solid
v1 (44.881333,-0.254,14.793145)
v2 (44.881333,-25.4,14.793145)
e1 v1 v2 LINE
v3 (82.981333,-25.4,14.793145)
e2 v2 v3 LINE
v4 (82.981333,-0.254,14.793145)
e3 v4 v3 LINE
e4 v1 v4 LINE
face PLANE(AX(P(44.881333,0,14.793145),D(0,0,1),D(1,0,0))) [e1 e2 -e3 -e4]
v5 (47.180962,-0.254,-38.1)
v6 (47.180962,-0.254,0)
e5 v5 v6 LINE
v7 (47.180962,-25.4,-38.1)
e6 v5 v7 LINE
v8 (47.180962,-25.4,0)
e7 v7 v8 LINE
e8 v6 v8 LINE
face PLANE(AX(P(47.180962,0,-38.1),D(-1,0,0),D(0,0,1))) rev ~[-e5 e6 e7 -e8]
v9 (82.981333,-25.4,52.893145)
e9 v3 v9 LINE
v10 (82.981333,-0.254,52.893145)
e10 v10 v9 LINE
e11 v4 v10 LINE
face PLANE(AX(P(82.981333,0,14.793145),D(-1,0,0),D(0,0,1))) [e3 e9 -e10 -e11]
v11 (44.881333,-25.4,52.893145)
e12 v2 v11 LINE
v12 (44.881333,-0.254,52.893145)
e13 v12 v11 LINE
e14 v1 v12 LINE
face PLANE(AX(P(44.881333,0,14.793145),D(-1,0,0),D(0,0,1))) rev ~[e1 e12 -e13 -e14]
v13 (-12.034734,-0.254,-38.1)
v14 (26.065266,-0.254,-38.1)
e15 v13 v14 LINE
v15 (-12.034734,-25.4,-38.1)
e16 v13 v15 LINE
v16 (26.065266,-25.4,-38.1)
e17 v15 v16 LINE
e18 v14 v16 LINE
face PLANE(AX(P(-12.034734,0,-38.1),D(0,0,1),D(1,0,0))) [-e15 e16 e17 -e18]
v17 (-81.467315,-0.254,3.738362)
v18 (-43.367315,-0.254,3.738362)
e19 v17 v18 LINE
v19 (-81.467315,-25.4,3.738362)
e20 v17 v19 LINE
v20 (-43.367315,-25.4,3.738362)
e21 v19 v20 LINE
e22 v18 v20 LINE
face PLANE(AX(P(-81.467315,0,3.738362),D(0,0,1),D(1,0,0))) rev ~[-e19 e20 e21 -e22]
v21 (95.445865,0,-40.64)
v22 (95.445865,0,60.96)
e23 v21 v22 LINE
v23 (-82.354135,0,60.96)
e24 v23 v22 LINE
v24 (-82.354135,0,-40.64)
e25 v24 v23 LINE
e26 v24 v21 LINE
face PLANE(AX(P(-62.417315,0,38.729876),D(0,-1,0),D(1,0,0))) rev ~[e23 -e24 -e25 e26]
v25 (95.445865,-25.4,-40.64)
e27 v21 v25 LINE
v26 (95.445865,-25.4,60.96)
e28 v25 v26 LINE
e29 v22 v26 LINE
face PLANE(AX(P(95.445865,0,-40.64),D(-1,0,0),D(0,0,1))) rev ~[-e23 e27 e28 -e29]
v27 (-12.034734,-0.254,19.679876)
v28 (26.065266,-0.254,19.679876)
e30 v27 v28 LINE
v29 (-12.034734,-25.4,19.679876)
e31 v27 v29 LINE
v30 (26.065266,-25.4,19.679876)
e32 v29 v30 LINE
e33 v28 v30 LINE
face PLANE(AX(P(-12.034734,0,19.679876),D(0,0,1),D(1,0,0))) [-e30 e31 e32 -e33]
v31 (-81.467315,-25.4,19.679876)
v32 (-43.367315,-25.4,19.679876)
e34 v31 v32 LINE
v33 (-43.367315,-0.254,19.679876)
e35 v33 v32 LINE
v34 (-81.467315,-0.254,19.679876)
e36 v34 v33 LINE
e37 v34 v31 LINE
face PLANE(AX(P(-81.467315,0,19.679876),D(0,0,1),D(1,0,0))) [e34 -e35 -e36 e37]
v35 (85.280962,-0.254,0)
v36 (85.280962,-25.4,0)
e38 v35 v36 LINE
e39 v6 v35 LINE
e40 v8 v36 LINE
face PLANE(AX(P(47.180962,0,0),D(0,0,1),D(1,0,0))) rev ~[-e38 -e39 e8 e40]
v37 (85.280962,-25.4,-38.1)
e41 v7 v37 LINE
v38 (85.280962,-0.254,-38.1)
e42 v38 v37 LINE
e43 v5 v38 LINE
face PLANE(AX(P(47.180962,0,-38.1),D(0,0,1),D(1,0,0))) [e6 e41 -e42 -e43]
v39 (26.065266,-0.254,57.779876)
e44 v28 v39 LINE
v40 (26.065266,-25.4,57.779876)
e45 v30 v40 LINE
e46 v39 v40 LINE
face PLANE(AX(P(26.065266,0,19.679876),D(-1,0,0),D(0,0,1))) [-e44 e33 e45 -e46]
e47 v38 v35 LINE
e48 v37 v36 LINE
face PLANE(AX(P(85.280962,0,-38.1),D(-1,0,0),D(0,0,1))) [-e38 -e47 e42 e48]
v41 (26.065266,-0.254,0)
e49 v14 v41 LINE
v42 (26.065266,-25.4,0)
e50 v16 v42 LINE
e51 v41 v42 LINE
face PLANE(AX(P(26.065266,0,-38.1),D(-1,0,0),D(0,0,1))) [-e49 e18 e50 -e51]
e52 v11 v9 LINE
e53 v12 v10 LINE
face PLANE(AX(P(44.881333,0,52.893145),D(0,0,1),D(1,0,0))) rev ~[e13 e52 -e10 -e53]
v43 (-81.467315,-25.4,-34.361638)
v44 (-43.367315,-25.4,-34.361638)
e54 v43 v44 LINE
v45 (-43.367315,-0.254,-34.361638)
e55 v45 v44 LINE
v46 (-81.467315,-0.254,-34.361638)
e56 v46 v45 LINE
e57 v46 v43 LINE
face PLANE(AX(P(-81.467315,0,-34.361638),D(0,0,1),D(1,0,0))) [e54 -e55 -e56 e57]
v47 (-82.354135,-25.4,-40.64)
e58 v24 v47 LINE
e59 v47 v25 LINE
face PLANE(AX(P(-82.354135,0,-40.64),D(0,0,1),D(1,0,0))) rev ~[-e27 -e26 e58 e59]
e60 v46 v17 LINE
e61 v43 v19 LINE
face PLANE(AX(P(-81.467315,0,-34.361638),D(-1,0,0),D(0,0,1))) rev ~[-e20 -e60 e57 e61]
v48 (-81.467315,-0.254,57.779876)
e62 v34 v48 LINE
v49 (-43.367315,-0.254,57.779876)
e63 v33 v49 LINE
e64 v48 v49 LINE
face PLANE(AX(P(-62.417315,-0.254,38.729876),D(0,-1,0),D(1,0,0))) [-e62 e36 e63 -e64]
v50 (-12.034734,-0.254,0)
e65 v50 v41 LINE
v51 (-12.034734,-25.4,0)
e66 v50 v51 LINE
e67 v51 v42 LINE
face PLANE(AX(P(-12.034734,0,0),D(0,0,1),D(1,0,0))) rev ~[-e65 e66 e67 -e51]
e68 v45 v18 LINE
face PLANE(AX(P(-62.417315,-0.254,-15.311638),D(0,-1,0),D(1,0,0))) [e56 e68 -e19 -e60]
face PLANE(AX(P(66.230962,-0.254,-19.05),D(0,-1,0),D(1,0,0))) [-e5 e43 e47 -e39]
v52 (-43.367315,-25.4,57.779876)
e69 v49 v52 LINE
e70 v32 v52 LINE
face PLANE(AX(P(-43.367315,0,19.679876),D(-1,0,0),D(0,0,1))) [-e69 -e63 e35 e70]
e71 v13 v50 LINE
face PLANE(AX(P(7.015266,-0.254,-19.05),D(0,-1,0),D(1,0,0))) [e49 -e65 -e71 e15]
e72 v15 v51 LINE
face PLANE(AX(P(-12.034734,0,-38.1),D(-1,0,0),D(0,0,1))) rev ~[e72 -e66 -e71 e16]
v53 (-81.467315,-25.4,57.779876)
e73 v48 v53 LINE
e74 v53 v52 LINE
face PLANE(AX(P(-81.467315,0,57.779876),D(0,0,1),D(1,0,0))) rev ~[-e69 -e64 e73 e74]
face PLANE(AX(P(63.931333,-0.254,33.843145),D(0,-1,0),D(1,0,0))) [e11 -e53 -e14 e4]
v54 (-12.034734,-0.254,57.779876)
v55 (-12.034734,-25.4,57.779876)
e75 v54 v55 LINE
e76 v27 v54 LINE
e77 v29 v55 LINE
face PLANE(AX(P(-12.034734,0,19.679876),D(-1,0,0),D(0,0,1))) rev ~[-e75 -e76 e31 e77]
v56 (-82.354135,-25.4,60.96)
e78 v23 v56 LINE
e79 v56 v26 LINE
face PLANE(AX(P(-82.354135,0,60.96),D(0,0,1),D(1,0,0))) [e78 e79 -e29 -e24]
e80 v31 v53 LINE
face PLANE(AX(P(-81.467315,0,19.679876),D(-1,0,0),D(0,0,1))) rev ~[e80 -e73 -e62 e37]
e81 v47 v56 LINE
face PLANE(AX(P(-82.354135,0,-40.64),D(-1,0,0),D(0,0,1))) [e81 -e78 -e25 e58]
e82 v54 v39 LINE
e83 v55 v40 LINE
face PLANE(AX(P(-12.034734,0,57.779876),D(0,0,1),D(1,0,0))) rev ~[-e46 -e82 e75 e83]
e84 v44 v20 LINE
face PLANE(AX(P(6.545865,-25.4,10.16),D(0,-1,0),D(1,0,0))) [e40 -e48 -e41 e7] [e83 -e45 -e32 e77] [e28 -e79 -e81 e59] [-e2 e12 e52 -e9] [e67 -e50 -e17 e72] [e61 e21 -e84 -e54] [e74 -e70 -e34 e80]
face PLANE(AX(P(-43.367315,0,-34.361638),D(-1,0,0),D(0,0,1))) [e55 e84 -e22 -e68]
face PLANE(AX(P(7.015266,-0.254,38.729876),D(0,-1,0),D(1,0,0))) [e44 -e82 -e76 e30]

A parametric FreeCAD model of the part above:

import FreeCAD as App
import Part
import Sketcher
Q = App.Units.Quantity


def add_polygon(sketch, points):
    """Adds a closed chain of lines whose ends are joined by coincident constraints."""
    first, n = sketch.GeometryCount, len(points)
    for a, b in zip(points, points[1:] + points[:1]):
        sketch.addGeometry(Part.LineSegment(App.Vector(*a, 0), App.Vector(*b, 0)), False)
    for i in range(n):
        sketch.addConstraint(Sketcher.Constraint("Coincident", first + i, 2, first + (i + 1) % n, 1))

doc = App.newDocument("Part")
body = doc.addObject("PartDesign::Body", "Body")

sketch1 = body.newObject("Sketcher::SketchObject", "Sketch")
sketch1.AttachmentSupport = (doc.getObject("XZ_Plane"), [""])
sketch1.MapMode = "FlatFace"
add_polygon(sketch1, [(-82, 61), (-82, -41), (95, -41), (95, 61)])
add_polygon(sketch1, [(-43, -34), (-81, -34), (-81, 4), (-43, 4)])
add_polygon(sketch1, [(26, -38), (-12, -38), (-12, 0), (26, 0)])
add_polygon(sketch1, [(85, -38), (47, -38), (47, 0), (85, 0)])
add_polygon(sketch1, [(-43, 20), (-81, 20), (-81, 58), (-43, 58)])
add_polygon(sketch1, [(26, 20), (-12, 20), (-12, 58), (26, 58)])
add_polygon(sketch1, [(83, 15), (45, 15), (45, 53), (83, 53)])
sketch1.addConstraint([
    Sketcher.Constraint("Vertical", 0),
    Sketcher.Constraint("Horizontal", 1),
    Sketcher.Constraint("Vertical", 2),
    Sketcher.Constraint("Horizontal", 3),
    Sketcher.Constraint("Horizontal", 4),
    Sketcher.Constraint("Vertical", 5),
    Sketcher.Constraint("Horizontal", 6),
    Sketcher.Constraint("Vertical", 7),
    Sketcher.Constraint("Horizontal", 8),
    Sketcher.Constraint("Vertical", 9),
    Sketcher.Constraint("Horizontal", 10),
    Sketcher.Constraint("Vertical", 11),
    Sketcher.Constraint("Horizontal", 12),
    Sketcher.Constraint("Vertical", 13),
    Sketcher.Constraint("Horizontal", 14),
    Sketcher.Constraint("Vertical", 15),
    Sketcher.Constraint("Horizontal", 16),
    Sketcher.Constraint("Vertical", 17),
    Sketcher.Constraint("Horizontal", 18),
    Sketcher.Constraint("Vertical", 19),
    Sketcher.Constraint("Horizontal", 20),
    Sketcher.Constraint("Vertical", 21),
    Sketcher.Constraint("Horizontal", 22),
    Sketcher.Constraint("Vertical", 23),
    Sketcher.Constraint("Horizontal", 24),
    Sketcher.Constraint("Vertical", 25),
    Sketcher.Constraint("Horizontal", 26),
    Sketcher.Constraint("Vertical", 27),
    Sketcher.Constraint("PointOnObject", 9, 2, -1),
    Sketcher.Constraint("PointOnObject", 13, 2, -1),
    Sketcher.Constraint("Horizontal", 11, 2, 12, 2),
    Sketcher.Constraint("Horizontal", 19, 2, 20, 2),
    Sketcher.Constraint("Horizontal", 18, 2, 21, 2),
    Sketcher.Constraint("Vertical", 5, 2, 16, 2),
    Sketcher.Constraint("Vertical", 7, 2, 18, 2),
    Sketcher.Constraint("Vertical", 9, 2, 20, 2),
    Sketcher.Constraint("Vertical", 11, 2, 22, 2),
    Sketcher.Constraint("Equal", 6, 8),
    Sketcher.Constraint("Equal", 10, 12),
    Sketcher.Constraint("Equal", 22, 24),
    Sketcher.Constraint("Equal", 26, 5),
    Sketcher.Constraint("Equal", 7, 9),
    Sketcher.Constraint("Equal", 15, 17),
    Sketcher.Constraint("Equal", 23, 25),
    Sketcher.Constraint("DistanceX", 1, 1, 1, 2, Q("7 in")),
    Sketcher.Constraint("DistanceY", 0, 2, 0, 1, Q("4 in")),
    Sketcher.Constraint("DistanceX", 4, 2, 4, 1, Q("1.5 in")),
    Sketcher.Constraint("DistanceY", 0, 2, -1, 1, Q("1.6 in")),
    Sketcher.Constraint("DistanceX", 0, 2, 8, 2, Q("70.319401 mm")),
    Sketcher.Constraint("DistanceY", -1, 1, 5, 2, Q("3.738362 mm")),
    Sketcher.Constraint("DistanceX", 0, 2, 4, 2, Q("0.88682 mm")),
    Sketcher.Constraint("DistanceX", 24, 2, 13, 2, Q("2.299629 mm")),
    Sketcher.Constraint("DistanceY", 24, 2, 23, 2, Q("4.886731 mm")),
    Sketcher.Constraint("DistanceX", 26, 2, 2, 2, Q("12.464532 mm")),
    Sketcher.Constraint("DistanceX", 0, 2, -1, 1, Q("82.354135 mm")),
    Sketcher.Constraint("DistanceY", -1, 1, 16, 2, Q("19.679876 mm")),
])
pad1 = body.newObject("PartDesign::Pad", "Pad")
pad1.Profile = sketch1
pad1.Length = Q("1 in")

sketch2 = body.newObject("Sketcher::SketchObject", "Sketch001")
sketch2.AttachmentSupport = (doc.getObject("XZ_Plane"), [""])
sketch2.MapMode = "FlatFace"
add_polygon(sketch2, [(-81, 58), (-81, 20), (-43, 20), (-43, 58)])
add_polygon(sketch2, [(-12, 58), (-12, 20), (26, 20), (26, 58)])
add_polygon(sketch2, [(45, 53), (45, 15), (83, 15), (83, 53)])
add_polygon(sketch2, [(47, 0), (47, -38), (85, -38), (85, 0)])
add_polygon(sketch2, [(-12, 0), (-12, -38), (26, -38), (26, 0)])
add_polygon(sketch2, [(-81, 4), (-81, -34), (-43, -34), (-43, 4)])
sketch2.addConstraint([
    Sketcher.Constraint("Vertical", 0),
    Sketcher.Constraint("Horizontal", 1),
    Sketcher.Constraint("Vertical", 2),
    Sketcher.Constraint("Horizontal", 3),
    Sketcher.Constraint("Vertical", 4),
    Sketcher.Constraint("Horizontal", 5),
    Sketcher.Constraint("Vertical", 6),
    Sketcher.Constraint("Horizontal", 7),
    Sketcher.Constraint("Vertical", 8),
    Sketcher.Constraint("Horizontal", 9),
    Sketcher.Constraint("Vertical", 10),
    Sketcher.Constraint("Horizontal", 11),
    Sketcher.Constraint("Vertical", 12),
    Sketcher.Constraint("Horizontal", 13),
    Sketcher.Constraint("Vertical", 14),
    Sketcher.Constraint("Horizontal", 15),
    Sketcher.Constraint("Vertical", 16),
    Sketcher.Constraint("Horizontal", 17),
    Sketcher.Constraint("Vertical", 18),
    Sketcher.Constraint("Horizontal", 19),
    Sketcher.Constraint("Vertical", 20),
    Sketcher.Constraint("Horizontal", 21),
    Sketcher.Constraint("Vertical", 22),
    Sketcher.Constraint("Horizontal", 23),
    Sketcher.Constraint("PointOnObject", 14, 2, -1),
    Sketcher.Constraint("PointOnObject", 18, 2, -1),
    Sketcher.Constraint("Horizontal", 1, 2, 4, 2),
    Sketcher.Constraint("Horizontal", 3, 2, 6, 2),
    Sketcher.Constraint("Horizontal", 13, 2, 16, 2),
    Sketcher.Constraint("Vertical", 7, 2, 16, 2),
    Sketcher.Constraint("Vertical", 6, 2, 17, 2),
    Sketcher.Constraint("Vertical", 3, 2, 20, 2),
    Sketcher.Constraint("Vertical", 2, 2, 21, 2),
    Sketcher.Constraint("Equal", 3, 5),
    Sketcher.Constraint("Equal", 7, 9),
    Sketcher.Constraint("Equal", 11, 13),
    Sketcher.Constraint("Equal", 23, 0),
    Sketcher.Constraint("Equal", 6, 8),
    Sketcher.Constraint("Equal", 10, 12),
    Sketcher.Constraint("Equal", 18, 20),
    Sketcher.Constraint("DistanceX", 1, 1, 1, 2, Q("1.5 in")),
    Sketcher.Constraint("DistanceY", -1, 1, 22, 2, Q("3.738362 mm")),
    Sketcher.Constraint("DistanceX", 1, 2, 4, 2, Q("31.332581 mm")),
    Sketcher.Constraint("DistanceY", 8, 2, 5, 2, Q("4.886731 mm")),
    Sketcher.Constraint("DistanceX", 1, 2, 8, 2, Q("88.248648 mm")),
    Sketcher.Constraint("DistanceX", 8, 2, 12, 2, Q("2.299629 mm")),
    Sketcher.Constraint("DistanceX", 0, 2, -1, 1, Q("81.467315 mm")),
    Sketcher.Constraint("DistanceY", -1, 1, 0, 2, Q("19.679876 mm")),
])
pad2 = body.newObject("PartDesign::Pad", "Pad001")
pad2.Profile = sketch2
pad2.Length = Q("0.01 in")

doc.recompute()
